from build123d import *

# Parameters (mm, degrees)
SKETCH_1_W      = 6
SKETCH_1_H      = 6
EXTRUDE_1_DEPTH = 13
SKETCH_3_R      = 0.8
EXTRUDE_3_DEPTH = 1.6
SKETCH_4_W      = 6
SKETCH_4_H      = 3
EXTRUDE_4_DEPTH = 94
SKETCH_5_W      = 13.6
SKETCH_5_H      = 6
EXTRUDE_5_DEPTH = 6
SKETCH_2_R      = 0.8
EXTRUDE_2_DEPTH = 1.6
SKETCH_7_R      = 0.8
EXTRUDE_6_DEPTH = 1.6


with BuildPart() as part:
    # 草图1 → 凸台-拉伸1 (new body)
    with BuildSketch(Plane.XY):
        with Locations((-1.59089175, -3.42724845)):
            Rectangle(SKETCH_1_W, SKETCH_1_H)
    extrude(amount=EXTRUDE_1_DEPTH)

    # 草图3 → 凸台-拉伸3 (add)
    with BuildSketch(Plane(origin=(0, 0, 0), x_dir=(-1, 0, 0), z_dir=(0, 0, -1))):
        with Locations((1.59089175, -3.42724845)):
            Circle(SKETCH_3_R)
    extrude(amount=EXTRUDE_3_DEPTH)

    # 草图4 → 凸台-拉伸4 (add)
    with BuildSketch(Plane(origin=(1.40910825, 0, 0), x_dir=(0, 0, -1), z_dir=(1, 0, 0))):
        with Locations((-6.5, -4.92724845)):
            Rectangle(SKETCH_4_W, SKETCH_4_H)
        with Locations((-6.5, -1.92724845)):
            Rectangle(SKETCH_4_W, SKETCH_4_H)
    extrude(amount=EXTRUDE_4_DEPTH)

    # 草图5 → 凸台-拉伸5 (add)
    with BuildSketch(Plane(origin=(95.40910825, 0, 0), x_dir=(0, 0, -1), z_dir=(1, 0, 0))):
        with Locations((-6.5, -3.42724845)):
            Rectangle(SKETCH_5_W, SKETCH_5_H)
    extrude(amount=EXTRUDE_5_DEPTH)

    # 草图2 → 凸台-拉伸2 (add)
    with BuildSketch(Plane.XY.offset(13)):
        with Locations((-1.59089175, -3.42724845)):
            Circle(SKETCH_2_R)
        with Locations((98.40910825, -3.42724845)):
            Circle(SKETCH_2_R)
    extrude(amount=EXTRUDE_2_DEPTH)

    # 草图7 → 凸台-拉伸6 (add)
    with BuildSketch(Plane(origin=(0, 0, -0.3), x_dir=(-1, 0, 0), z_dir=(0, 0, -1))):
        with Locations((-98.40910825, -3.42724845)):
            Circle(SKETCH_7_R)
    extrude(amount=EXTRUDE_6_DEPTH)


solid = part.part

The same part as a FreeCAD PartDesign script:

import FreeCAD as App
import Part
import Sketcher
from FreeCAD import Vector
Q = App.Units.Quantity


def add_polygon(sketch, points):
    """Adds a closed chain of lines whose ends are joined by coincident constraints."""
    first, n = sketch.GeometryCount, len(points)
    for a, b in zip(points, points[1:] + points[:1]):
        sketch.addGeometry(Part.LineSegment(App.Vector(*a, 0), App.Vector(*b, 0)), False)
    for i in range(n):
        sketch.addConstraint(Sketcher.Constraint("Coincident", first + i, 2, first + (i + 1) % n, 1))

doc = App.newDocument("Part")
body = doc.addObject("PartDesign::Body", "Body")

# Sketch on XY plane
sketch1 = doc.addObject("Sketcher::SketchObject", "Sketch")
body.addObject(sketch1)
sketch1.AttachmentSupport = (doc.XY_Plane, [""])
sketch1.MapMode = "FlatFace"
add_polygon(sketch1, [(-5, 0), (-5, -6), (1, -6), (1, 0)])  # lines 0-3
sketch1.addConstraint(Sketcher.Constraint("Vertical", 0))
sketch1.addConstraint(Sketcher.Constraint("Horizontal", 1))
sketch1.addConstraint(Sketcher.Constraint("Vertical", 2))
sketch1.addConstraint(Sketcher.Constraint("Horizontal", 3))
sketch1.addConstraint(Sketcher.Constraint("Equal", 3, 0))
sketch1.addConstraint(Sketcher.Constraint("DistanceX", 1, 1, 1, 2, Q("6 mm")))
sketch1.addConstraint(Sketcher.Constraint("DistanceX", 0, 2, -1, 1, Q("4.590892 mm")))
sketch1.addConstraint(Sketcher.Constraint("DistanceY", 0, 2, -1, 1, Q("6.427248 mm")))
pad1 = doc.addObject("PartDesign::Pad", "Pad")
body.addObject(pad1)
pad1.Profile = sketch1
pad1.Length = 13

# Sketch on XY plane
sketch2 = doc.addObject("Sketcher::SketchObject", "Sketch001")
body.addObject(sketch2)
sketch2.AttachmentSupport = (doc.XY_Plane, [""])
sketch2.MapMode = "FlatFace"
sketch2.addGeometry(Part.Circle(Vector(-1.6, -3.4, 0), Vector(0, 0, 1), 0.8), False)
sketch2.addConstraint(Sketcher.Constraint("Diameter", 0, Q("1.6 mm")))
sketch2.addConstraint(Sketcher.Constraint("DistanceX", 0, 3, -1, 1, Q("1.590892 mm")))
sketch2.addConstraint(Sketcher.Constraint("DistanceY", 0, 3, -1, 1, Q("3.427248 mm")))
pad2 = doc.addObject("PartDesign::Pad", "Pad001")
body.addObject(pad2)
pad2.Profile = sketch2
pad2.Length = 1.6
pad2.Reversed = True

# Sketch on YZ plane
sketch3 = doc.addObject("Sketcher::SketchObject", "Sketch002")
body.addObject(sketch3)
sketch3.AttachmentSupport = (doc.YZ_Plane, [""])
sketch3.MapMode = "FlatFace"
sketch3.AttachmentOffset = App.Placement(Vector(0, 0, 1.409108), App.Rotation())
add_polygon(sketch3, [(-6, 10), (-6, 4), (0, 4), (0, 10)])  # lines 0-3
sketch3.addConstraint(Sketcher.Constraint("Vertical", 0))
sketch3.addConstraint(Sketcher.Constraint("Horizontal", 1))
sketch3.addConstraint(Sketcher.Constraint("Vertical", 2))
sketch3.addConstraint(Sketcher.Constraint("Horizontal", 3))
sketch3.addConstraint(Sketcher.Constraint("Equal", 3, 0))
sketch3.addConstraint(Sketcher.Constraint("DistanceX", 1, 1, 1, 2, Q("6 mm")))
sketch3.addConstraint(Sketcher.Constraint("DistanceY", -1, 1, 0, 2, Q("3.5 mm")))
sketch3.addConstraint(Sketcher.Constraint("DistanceX", 0, 2, -1, 1, Q("6.427248 mm")))
pad3 = doc.addObject("PartDesign::Pad", "Pad002")
body.addObject(pad3)
pad3.Profile = sketch3
pad3.Length = 94

# Sketch on YZ plane
sketch4 = doc.addObject("Sketcher::SketchObject", "Sketch003")
body.addObject(sketch4)
sketch4.AttachmentSupport = (doc.YZ_Plane, [""])
sketch4.MapMode = "FlatFace"
sketch4.AttachmentOffset = App.Placement(Vector(0, 0, 95.409108), App.Rotation())
add_polygon(sketch4, [(0, 13), (-6, 13), (-6, 0), (0, 0)])  # lines 0-3
sketch4.addConstraint(Sketcher.Constraint("Horizontal", 0))
sketch4.addConstraint(Sketcher.Constraint("Vertical", 1))
sketch4.addConstraint(Sketcher.Constraint("Horizontal", 2))
sketch4.addConstraint(Sketcher.Constraint("Vertical", 3))
sketch4.addConstraint(Sketcher.Constraint("DistanceX", 0, 2, 0, 1, Q("6 mm")))
sketch4.addConstraint(Sketcher.Constraint("DistanceY", 1, 2, 1, 1, Q("13.6 mm")))
sketch4.addConstraint(Sketcher.Constraint("DistanceY", -1, 1, 0, 2, Q("13.3 mm")))
sketch4.addConstraint(Sketcher.Constraint("DistanceX", 0, 2, -1, 1, Q("6.427248 mm")))
pad4 = doc.addObject("PartDesign::Pad", "Pad003")
body.addObject(pad4)
pad4.Profile = sketch4
pad4.Length = 6

# Sketch on XY plane
sketch5 = doc.addObject("Sketcher::SketchObject", "Sketch004")
body.addObject(sketch5)
sketch5.AttachmentSupport = (doc.XY_Plane, [""])
sketch5.MapMode = "FlatFace"
sketch5.AttachmentOffset = App.Placement(Vector(0, 0, 13), App.Rotation())
sketch5.addGeometry(Part.Circle(Vector(-1.6, -3.4, 0), Vector(0, 0, 1), 0.8), False)
sketch5.addGeometry(Part.Circle(Vector(98.4, -3.4, 0), Vector(0, 0, 1), 0.8), False)
sketch5.addConstraint(Sketcher.Constraint("Equal", 0, 1))
sketch5.addConstraint(Sketcher.Constraint("Horizontal", 0, 3, 1, 3))
sketch5.addConstraint(Sketcher.Constraint("Diameter", 0, Q("1.6 mm")))
sketch5.addConstraint(Sketcher.Constraint("DistanceX", 0, 3, 1, 3, Q("100 mm")))
sketch5.addConstraint(Sketcher.Constraint("DistanceX", 0, 3, -1, 1, Q("1.590892 mm")))
sketch5.addConstraint(Sketcher.Constraint("DistanceY", 0, 3, -1, 1, Q("3.427248 mm")))
pad5 = doc.addObject("PartDesign::Pad", "Pad004")
body.addObject(pad5)
pad5.Profile = sketch5
pad5.Length = 1.6

# Sketch on XY plane
sketch6 = doc.addObject("Sketcher::SketchObject", "Sketch005")
body.addObject(sketch6)
sketch6.AttachmentSupport = (doc.XY_Plane, [""])
sketch6.MapMode = "FlatFace"
sketch6.AttachmentOffset = App.Placement(Vector(0, 0, -0.3), App.Rotation())
sketch6.addGeometry(Part.Circle(Vector(98.4, -3.4, 0), Vector(0, 0, 1), 0.8), False)
sketch6.addConstraint(Sketcher.Constraint("Diameter", 0, Q("1.6 mm")))
sketch6.addConstraint(Sketcher.Constraint("DistanceX", -1, 1, 0, 3, Q("98.409108 mm")))
sketch6.addConstraint(Sketcher.Constraint("DistanceY", 0, 3, -1, 1, Q("3.427248 mm")))
pad6 = doc.addObject("PartDesign::Pad", "Pad005")
body.addObject(pad6)
pad6.Profile = sketch6
pad6.Length = 1.6
pad6.Reversed = True

doc.recompute()
